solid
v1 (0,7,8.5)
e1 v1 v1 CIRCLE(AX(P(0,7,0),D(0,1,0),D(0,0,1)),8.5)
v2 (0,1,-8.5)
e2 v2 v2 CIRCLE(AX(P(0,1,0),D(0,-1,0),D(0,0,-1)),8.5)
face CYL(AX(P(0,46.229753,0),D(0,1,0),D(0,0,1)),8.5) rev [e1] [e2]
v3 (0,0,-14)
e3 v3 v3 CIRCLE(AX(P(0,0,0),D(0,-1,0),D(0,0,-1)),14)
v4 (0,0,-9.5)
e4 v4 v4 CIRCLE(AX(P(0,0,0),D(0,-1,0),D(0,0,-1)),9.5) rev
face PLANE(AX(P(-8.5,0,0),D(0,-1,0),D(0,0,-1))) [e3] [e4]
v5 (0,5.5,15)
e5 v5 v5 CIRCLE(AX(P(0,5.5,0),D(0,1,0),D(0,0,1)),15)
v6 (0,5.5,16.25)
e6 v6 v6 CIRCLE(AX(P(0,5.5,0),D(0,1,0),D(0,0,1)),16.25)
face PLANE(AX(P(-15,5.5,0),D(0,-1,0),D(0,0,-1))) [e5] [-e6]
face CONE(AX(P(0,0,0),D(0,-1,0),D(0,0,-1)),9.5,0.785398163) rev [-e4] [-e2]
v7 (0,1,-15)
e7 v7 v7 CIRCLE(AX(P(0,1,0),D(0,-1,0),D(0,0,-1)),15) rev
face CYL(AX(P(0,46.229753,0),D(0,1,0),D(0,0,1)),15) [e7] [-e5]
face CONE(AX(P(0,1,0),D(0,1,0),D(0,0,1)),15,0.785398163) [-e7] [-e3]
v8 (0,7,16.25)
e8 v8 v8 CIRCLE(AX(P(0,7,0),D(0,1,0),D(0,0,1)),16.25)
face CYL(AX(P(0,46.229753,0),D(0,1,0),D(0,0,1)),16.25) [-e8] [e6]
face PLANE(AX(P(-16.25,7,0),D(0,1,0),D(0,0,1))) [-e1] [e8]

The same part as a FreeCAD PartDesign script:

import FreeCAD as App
import Part
import Sketcher
Q = App.Units.Quantity


def edges_at(feature, points):
    """Names of the edges that pass closest to the given points."""
    edges = feature.Shape.Edges
    near = lambda p: min(range(len(edges)), key=lambda i: edges[i].distToShape(Part.Vertex(*p))[0])
    return sorted({f"Edge{near(p) + 1}" for p in points})


def add_polygon(sketch, points):
    """Adds a closed chain of lines whose ends are joined by coincident constraints."""
    first, n = sketch.GeometryCount, len(points)
    for a, b in zip(points, points[1:] + points[:1]):
        sketch.addGeometry(Part.LineSegment(App.Vector(*a, 0), App.Vector(*b, 0)), False)
    for i in range(n):
        sketch.addConstraint(Sketcher.Constraint("Coincident", first + i, 2, first + (i + 1) % n, 1))

doc = App.newDocument("Part")
body = doc.addObject("PartDesign::Body", "Body")

sketch1 = doc.addObject("Sketcher::SketchObject", "Sketch")
body.addObject(sketch1)
sketch1.AttachmentSupport = (doc.XY_Plane, [""])
sketch1.MapMode = "FlatFace"
add_polygon(sketch1, [(-15, 0), (-8.5, 0), (-8.5, 7), (-16.2, 7), (-16.2, 5.5), (-15, 5.5)])
sketch1.addConstraint([
    Sketcher.Constraint("Horizontal", 0),
    Sketcher.Constraint("Vertical", 1),
    Sketcher.Constraint("Horizontal", 2),
    Sketcher.Constraint("Vertical", 3),
    Sketcher.Constraint("Horizontal", 4),
    Sketcher.Constraint("Vertical", 5),
    Sketcher.Constraint("PointOnObject", 0, 2, -1),
    Sketcher.Constraint("DistanceY", 1, 1, 1, 2, Q("7 mm")),
    Sketcher.Constraint("DistanceX", 0, 1, 0, 2, Q("6.5 mm")),
    Sketcher.Constraint("DistanceY", 3, 2, 3, 1, Q("1.5 mm")),
    Sketcher.Constraint("DistanceX", 4, 2, -1, 1, Q("15 mm")),
    Sketcher.Constraint("DistanceX", 2, 2, 2, 1, Q("7.75 mm")),
])
revolution = doc.addObject("PartDesign::Revolution", "Revolution")
body.addObject(revolution)
revolution.Profile = sketch1
revolution.ReferenceAxis = (sketch1, ["V_Axis"])
revolution.Angle = 360
doc.recompute()

chamfer = doc.addObject("PartDesign::Chamfer", "Chamfer")
body.addObject(chamfer)
chamfer.Base = (revolution, edges_at(revolution, [(0, 0, -15), (0, 0, -8.5)]))
chamfer.Size = 1

doc.recompute()
